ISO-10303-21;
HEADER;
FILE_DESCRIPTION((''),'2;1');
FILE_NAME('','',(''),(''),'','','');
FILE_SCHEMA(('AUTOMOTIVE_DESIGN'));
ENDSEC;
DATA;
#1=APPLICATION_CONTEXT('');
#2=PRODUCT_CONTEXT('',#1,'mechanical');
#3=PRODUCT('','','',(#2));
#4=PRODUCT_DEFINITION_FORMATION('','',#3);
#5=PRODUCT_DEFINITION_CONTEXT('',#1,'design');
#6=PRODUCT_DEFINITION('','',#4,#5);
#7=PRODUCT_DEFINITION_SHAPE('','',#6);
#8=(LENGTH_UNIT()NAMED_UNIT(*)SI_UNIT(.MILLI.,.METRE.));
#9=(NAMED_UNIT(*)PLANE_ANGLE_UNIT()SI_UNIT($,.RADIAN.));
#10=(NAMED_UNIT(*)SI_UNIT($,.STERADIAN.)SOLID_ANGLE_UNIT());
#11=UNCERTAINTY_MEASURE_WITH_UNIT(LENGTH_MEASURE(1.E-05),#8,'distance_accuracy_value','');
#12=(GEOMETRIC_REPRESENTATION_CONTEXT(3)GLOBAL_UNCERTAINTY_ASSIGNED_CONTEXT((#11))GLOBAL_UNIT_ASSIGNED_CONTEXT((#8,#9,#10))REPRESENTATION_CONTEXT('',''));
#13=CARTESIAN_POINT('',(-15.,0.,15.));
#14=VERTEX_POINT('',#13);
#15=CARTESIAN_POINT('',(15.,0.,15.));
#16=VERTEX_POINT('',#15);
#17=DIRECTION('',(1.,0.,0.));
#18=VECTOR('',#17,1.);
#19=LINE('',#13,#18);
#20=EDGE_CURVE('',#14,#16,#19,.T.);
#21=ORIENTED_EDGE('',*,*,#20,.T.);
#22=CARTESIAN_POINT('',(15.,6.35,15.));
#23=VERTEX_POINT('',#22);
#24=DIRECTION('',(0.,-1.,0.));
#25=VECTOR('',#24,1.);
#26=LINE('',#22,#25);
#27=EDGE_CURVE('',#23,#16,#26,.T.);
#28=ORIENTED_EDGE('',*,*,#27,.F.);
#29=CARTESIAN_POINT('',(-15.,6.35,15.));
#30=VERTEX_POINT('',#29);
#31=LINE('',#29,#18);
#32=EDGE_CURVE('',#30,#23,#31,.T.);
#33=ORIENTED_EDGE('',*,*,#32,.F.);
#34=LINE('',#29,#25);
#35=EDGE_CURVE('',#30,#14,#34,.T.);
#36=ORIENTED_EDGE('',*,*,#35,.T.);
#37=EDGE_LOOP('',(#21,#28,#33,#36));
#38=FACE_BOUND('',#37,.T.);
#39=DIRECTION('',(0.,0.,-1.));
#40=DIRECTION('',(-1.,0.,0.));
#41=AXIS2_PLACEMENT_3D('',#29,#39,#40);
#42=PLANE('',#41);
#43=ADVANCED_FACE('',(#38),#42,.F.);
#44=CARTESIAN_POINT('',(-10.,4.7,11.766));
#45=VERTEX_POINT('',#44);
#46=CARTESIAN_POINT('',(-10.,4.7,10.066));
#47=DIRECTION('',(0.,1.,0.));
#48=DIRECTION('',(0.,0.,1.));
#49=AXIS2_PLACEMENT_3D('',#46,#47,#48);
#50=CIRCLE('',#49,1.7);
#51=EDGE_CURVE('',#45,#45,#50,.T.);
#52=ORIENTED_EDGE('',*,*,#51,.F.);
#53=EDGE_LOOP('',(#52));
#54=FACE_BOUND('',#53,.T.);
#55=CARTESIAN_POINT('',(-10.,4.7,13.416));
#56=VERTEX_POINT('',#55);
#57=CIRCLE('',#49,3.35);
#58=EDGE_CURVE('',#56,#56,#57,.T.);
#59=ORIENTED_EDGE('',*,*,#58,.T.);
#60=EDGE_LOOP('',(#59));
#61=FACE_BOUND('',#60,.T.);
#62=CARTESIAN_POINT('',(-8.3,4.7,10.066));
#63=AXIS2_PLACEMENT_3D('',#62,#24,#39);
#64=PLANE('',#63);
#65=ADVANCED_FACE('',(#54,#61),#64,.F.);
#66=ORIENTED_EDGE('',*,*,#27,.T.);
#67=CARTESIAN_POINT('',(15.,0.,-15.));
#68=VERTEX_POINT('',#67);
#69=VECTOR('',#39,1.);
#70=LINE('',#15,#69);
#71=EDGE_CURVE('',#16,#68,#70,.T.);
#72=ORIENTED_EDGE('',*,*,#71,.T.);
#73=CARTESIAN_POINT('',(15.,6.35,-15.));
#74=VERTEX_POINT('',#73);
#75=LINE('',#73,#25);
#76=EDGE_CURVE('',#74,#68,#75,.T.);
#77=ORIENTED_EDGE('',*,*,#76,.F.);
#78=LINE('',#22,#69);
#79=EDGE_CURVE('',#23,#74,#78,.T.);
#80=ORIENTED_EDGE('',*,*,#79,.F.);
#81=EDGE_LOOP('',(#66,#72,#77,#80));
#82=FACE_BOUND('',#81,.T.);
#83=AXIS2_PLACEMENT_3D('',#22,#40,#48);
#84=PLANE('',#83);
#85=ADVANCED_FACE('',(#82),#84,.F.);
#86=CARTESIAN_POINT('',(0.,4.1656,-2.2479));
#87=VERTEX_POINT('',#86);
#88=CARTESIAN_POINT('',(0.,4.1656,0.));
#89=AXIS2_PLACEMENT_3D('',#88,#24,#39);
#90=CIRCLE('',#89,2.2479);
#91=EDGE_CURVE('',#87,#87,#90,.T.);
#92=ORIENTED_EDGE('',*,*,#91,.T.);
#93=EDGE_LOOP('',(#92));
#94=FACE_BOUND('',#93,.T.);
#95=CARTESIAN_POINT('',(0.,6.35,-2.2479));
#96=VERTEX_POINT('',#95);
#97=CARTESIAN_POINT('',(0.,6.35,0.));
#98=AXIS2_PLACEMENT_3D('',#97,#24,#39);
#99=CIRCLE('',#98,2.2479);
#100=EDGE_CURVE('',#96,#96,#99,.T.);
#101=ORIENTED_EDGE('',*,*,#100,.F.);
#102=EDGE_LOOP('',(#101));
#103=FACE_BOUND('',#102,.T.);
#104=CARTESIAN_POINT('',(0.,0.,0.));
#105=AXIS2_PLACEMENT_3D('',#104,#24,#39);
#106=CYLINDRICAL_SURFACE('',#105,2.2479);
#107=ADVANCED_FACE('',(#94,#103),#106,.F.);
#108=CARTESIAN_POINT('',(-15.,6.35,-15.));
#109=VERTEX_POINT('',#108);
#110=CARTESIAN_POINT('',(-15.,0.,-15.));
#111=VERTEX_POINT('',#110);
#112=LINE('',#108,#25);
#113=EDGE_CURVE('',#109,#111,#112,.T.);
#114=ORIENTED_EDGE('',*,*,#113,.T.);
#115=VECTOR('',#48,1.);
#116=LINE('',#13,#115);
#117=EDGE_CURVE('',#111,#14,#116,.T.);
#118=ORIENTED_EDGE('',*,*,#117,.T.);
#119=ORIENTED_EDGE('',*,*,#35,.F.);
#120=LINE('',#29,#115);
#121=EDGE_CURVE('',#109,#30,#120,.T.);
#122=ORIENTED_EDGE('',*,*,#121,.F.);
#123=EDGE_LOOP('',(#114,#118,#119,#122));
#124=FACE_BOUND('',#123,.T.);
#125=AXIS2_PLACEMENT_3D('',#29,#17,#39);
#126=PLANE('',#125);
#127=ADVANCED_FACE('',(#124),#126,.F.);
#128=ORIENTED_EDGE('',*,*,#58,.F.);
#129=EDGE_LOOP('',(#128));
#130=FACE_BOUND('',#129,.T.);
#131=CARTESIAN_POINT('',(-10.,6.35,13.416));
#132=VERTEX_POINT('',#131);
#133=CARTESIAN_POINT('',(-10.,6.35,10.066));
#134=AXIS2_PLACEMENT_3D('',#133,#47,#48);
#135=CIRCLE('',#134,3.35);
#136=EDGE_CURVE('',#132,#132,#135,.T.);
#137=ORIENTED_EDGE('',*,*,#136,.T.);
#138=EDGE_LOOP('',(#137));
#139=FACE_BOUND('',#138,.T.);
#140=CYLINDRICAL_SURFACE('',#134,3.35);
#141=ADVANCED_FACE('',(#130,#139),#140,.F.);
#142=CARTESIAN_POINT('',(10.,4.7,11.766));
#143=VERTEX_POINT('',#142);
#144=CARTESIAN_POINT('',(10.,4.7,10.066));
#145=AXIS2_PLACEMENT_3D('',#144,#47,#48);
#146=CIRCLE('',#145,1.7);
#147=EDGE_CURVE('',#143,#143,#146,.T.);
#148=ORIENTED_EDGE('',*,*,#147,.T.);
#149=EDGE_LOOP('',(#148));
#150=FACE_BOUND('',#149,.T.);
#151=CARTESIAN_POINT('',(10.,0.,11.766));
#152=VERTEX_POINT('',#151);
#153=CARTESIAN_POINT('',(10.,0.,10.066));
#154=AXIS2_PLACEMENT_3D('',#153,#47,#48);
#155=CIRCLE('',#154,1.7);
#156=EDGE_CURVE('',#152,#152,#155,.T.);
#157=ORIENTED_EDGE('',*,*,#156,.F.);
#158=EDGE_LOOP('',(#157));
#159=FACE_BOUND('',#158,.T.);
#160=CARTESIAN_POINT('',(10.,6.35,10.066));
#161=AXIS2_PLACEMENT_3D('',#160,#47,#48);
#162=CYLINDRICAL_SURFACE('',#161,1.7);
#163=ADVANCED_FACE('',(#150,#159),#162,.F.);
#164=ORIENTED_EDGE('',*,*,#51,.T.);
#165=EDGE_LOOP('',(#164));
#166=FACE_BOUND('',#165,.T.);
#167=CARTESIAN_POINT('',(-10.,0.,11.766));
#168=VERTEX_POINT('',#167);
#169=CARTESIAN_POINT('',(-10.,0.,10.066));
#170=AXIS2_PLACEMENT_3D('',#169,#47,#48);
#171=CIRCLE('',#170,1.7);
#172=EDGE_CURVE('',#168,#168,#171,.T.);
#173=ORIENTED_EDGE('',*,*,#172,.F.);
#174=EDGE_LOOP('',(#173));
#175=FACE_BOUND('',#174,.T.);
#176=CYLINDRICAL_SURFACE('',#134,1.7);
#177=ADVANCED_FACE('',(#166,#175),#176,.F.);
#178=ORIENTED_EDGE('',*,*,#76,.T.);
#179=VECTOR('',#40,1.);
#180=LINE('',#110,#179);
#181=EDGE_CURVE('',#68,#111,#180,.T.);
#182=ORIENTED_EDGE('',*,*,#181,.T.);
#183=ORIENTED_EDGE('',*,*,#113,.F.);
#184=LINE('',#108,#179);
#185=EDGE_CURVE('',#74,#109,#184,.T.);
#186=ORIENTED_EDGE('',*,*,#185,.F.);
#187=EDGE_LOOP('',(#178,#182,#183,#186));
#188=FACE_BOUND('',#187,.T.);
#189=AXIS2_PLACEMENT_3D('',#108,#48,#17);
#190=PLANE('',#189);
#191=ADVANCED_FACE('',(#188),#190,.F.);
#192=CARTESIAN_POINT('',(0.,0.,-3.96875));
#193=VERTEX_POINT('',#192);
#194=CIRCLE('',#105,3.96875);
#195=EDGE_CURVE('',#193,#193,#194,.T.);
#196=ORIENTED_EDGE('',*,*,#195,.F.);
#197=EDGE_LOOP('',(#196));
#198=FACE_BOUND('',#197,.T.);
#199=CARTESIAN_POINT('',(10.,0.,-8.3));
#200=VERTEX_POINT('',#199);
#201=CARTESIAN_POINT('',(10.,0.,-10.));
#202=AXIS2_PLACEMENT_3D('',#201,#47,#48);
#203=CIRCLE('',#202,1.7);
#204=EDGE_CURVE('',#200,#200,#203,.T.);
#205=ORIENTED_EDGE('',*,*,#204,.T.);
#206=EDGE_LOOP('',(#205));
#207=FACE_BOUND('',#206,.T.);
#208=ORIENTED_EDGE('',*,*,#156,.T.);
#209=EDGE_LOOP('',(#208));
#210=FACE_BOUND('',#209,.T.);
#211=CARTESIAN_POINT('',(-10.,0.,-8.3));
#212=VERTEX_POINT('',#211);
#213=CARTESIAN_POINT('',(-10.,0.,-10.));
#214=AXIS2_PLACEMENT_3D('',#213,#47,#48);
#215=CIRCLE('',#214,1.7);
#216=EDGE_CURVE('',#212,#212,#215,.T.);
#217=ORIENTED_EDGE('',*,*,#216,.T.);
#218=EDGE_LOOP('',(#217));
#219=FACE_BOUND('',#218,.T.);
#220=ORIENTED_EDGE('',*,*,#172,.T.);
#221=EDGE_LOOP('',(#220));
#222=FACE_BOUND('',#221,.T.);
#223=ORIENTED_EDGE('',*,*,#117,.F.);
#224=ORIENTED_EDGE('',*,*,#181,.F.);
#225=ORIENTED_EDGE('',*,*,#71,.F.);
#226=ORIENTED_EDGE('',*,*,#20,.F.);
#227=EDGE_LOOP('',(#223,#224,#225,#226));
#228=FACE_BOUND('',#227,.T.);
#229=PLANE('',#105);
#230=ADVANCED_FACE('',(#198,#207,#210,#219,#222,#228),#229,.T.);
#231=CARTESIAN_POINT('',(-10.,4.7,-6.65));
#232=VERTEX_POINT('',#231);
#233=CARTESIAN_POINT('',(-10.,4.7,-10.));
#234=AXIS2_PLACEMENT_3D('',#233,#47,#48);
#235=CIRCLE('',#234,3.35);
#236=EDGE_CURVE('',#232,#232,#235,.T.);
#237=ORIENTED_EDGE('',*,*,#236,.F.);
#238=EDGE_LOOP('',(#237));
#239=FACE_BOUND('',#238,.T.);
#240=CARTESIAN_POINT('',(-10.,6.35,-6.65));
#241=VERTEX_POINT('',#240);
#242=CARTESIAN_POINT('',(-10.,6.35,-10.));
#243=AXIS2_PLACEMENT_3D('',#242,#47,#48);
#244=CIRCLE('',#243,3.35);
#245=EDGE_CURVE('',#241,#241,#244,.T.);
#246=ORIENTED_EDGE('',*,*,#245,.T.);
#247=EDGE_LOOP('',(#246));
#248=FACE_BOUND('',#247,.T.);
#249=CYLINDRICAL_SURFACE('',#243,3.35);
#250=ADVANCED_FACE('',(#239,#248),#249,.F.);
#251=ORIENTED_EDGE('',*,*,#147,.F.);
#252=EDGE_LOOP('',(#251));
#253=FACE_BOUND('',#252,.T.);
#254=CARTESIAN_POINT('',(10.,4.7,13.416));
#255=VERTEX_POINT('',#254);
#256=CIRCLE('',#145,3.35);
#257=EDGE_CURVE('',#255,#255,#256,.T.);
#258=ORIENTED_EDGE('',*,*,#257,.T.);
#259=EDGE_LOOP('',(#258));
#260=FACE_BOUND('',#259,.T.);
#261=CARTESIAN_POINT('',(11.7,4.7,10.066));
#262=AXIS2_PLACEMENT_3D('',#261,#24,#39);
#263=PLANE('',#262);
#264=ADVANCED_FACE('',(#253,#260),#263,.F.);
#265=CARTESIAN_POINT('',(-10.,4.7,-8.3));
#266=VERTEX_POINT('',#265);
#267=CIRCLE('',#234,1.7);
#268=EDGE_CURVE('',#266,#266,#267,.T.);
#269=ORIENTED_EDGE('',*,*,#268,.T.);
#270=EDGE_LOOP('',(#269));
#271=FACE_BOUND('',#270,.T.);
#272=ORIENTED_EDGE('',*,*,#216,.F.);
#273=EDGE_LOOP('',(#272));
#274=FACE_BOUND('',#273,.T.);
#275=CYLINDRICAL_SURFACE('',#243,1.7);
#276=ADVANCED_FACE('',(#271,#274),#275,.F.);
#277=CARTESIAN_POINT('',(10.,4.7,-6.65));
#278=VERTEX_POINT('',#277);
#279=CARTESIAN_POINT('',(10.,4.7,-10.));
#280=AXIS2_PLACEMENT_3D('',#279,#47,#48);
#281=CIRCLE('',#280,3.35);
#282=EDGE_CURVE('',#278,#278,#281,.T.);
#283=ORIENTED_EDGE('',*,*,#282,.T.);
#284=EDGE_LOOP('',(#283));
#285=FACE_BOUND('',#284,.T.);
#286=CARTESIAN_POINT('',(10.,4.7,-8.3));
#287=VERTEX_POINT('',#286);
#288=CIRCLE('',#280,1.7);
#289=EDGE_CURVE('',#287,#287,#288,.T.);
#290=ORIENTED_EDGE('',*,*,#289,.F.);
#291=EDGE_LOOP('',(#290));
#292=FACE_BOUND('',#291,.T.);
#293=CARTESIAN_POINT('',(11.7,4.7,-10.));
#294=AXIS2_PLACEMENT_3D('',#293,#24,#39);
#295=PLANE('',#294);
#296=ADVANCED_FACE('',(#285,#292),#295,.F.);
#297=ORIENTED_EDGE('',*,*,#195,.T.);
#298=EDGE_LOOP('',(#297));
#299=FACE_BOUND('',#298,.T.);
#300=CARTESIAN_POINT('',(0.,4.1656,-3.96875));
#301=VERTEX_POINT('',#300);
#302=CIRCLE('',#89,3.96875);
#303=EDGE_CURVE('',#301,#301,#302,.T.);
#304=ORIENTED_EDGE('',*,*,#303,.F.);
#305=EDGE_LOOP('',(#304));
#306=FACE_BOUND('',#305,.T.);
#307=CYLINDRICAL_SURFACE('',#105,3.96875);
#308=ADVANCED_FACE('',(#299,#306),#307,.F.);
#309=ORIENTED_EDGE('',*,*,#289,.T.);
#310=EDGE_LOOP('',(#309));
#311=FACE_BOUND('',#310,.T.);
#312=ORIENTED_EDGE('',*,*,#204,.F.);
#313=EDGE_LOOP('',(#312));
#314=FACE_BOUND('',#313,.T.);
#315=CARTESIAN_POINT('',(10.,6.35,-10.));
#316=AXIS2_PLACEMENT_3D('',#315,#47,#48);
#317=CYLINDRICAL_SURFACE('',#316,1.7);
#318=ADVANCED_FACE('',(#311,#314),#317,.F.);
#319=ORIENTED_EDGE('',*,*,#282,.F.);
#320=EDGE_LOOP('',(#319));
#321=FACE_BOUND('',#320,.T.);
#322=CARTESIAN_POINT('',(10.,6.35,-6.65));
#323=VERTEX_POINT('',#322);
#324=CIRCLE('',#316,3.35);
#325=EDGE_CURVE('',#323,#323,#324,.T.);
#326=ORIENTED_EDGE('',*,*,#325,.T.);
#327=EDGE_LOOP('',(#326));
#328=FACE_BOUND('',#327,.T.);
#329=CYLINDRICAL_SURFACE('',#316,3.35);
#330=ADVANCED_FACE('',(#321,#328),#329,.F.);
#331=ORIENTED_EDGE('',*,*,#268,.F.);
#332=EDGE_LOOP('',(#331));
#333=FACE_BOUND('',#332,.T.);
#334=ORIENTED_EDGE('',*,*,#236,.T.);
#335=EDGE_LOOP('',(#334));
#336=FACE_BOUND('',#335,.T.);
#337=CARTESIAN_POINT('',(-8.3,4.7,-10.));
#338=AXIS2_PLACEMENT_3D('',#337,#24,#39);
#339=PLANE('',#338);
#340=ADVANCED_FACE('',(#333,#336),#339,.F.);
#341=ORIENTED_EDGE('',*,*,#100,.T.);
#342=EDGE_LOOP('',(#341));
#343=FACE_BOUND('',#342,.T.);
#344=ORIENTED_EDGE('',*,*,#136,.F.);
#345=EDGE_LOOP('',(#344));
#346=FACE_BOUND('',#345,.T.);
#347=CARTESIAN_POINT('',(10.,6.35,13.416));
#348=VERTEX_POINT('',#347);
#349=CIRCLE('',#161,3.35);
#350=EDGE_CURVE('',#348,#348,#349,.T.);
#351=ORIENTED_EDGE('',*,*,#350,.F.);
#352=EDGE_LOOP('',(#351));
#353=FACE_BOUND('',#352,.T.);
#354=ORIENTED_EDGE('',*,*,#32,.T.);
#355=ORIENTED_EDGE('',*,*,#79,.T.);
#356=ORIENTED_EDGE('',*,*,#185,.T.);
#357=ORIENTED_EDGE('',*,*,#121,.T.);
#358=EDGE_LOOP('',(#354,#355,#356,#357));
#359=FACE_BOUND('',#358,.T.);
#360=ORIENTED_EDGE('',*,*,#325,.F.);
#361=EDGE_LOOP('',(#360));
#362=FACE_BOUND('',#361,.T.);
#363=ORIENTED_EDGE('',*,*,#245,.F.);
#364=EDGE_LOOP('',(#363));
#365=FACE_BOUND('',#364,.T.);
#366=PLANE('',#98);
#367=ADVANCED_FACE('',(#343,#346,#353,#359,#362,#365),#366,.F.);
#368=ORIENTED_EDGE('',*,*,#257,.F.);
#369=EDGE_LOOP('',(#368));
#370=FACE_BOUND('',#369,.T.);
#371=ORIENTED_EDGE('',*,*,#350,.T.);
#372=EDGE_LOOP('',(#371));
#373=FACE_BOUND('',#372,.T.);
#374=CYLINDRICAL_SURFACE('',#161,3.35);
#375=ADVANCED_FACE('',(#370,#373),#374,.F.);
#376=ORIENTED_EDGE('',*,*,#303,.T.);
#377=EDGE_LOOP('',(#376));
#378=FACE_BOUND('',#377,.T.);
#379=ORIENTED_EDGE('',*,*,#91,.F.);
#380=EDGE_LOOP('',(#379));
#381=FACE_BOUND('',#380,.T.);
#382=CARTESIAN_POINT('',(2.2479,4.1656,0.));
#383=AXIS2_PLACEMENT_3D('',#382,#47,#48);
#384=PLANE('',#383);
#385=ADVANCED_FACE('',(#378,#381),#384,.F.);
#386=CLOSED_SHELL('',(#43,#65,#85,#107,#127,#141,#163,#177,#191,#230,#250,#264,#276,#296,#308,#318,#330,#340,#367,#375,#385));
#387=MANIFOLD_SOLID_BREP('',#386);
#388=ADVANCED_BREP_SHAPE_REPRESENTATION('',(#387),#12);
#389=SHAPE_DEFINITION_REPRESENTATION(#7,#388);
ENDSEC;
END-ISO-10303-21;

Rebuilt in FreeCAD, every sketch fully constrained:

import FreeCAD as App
import Part
import Sketcher
Q = App.Units.Quantity

doc = App.newDocument("Part")
body = doc.addObject("PartDesign::Body", "Body")

# Sketch on XZ plane
sketch1 = body.newObject("Sketcher::SketchObject", "Sketch")
sketch1.AttachmentSupport = (doc.getObject("XZ_Plane"), [""])
sketch1.MapMode = "FlatFace"
sketch1.addGeometry([
    Part.LineSegment(App.Vector(-15, -15, 0), App.Vector(-15, 15, 0)),
    Part.LineSegment(App.Vector(-15, 15, 0), App.Vector(15, 15, 0)),
    Part.LineSegment(App.Vector(15, 15, 0), App.Vector(15, -15, 0)),
    Part.LineSegment(App.Vector(15, -15, 0), App.Vector(-15, -15, 0)),
], False)
sketch1.addConstraint([
    Sketcher.Constraint("Coincident", 0, 2, 1, 1),
    Sketcher.Constraint("Coincident", 1, 2, 2, 1),
    Sketcher.Constraint("Coincident", 2, 2, 3, 1),
    Sketcher.Constraint("Coincident", 3, 2, 0, 1),
    Sketcher.Constraint("Vertical", 0),
    Sketcher.Constraint("Horizontal", 1),
    Sketcher.Constraint("Vertical", 2),
    Sketcher.Constraint("Horizontal", 3),
    Sketcher.Constraint("Symmetric", 0, 2, 2, 2, -1, 1),
    Sketcher.Constraint("Equal", 3, 0),
    Sketcher.Constraint("DistanceX", 1, 1, 1, 2, Q("30 mm")),
])
pad1 = body.newObject("PartDesign::Pad", "Pad")
pad1.Profile = sketch1
pad1.Length = 6.35
pad1.Reversed = True

# Sketch on XZ plane
sketch2 = body.newObject("Sketcher::SketchObject", "Sketch001")
sketch2.AttachmentSupport = (doc.getObject("XZ_Plane"), [""])
sketch2.MapMode = "FlatFace"
sketch2.AttachmentOffset = App.Placement(App.Vector(0, 0, -6.35), App.Rotation())
sketch2.addGeometry([
    Part.Circle(App.Vector(-10, -10, 0), App.Vector(0, 0, 1), 1.7),
    Part.Circle(App.Vector(10, -10, 0), App.Vector(0, 0, 1), 1.7),
    Part.Circle(App.Vector(10, 10.066, 0), App.Vector(0, 0, 1), 1.7),
    Part.Circle(App.Vector(-10, 10.066, 0), App.Vector(0, 0, 1), 1.7),
], False)
sketch2.addConstraint([
    Sketcher.Constraint("Equal", 0, 1),
    Sketcher.Constraint("Equal", 1, 2),
    Sketcher.Constraint("Equal", 2, 3),
    Sketcher.Constraint("Symmetric", 0, 3, 1, 3, -2),
    Sketcher.Constraint("Symmetric", 2, 3, 3, 3, -2),
    Sketcher.Constraint("Vertical", 1, 3, 2, 3),
    Sketcher.Constraint("Diameter", 0, Q("3.4 mm")),
    Sketcher.Constraint("DistanceX", 0, 3, -1, 1, Q("10 mm")),
    Sketcher.Constraint("DistanceY", 0, 3, -1, 1, Q("10 mm")),
    Sketcher.Constraint("DistanceY", -1, 1, 2, 3, Q("10.066 mm")),
])
doc.recompute()
hole = body.newObject("PartDesign::Hole", "Hole")
hole.Profile = sketch2
hole.ThreadType = "None"
hole.Diameter = 3.4
hole.DepthType = "ThroughAll"
hole.HoleCutType = "Counterbore"
hole.HoleCutDiameter = 6.7
hole.HoleCutDepth = 1.65
hole.Reversed = True

# Sketch on XZ plane
sketch3 = body.newObject("Sketcher::SketchObject", "Sketch002")
sketch3.AttachmentSupport = (doc.getObject("XZ_Plane"), [""])
sketch3.MapMode = "FlatFace"
sketch3.addGeometry(Part.Circle(App.Vector(0, 0, 0), App.Vector(0, 0, 1), 2.2479), False)
sketch3.addConstraint([
    Sketcher.Constraint("Coincident", 0, 3, -1, 1),
    Sketcher.Constraint("Diameter", 0, Q("4.4958 mm")),
])
doc.recompute()
hole2 = body.newObject("PartDesign::Hole", "Hole001")
hole2.Profile = sketch3
hole2.ThreadType = "None"
hole2.Diameter = 4.4958
hole2.DepthType = "ThroughAll"
hole2.HoleCutType = "Counterbore"
hole2.HoleCutDiameter = 7.9375
hole2.HoleCutDepth = 4.1656

doc.recompute()
